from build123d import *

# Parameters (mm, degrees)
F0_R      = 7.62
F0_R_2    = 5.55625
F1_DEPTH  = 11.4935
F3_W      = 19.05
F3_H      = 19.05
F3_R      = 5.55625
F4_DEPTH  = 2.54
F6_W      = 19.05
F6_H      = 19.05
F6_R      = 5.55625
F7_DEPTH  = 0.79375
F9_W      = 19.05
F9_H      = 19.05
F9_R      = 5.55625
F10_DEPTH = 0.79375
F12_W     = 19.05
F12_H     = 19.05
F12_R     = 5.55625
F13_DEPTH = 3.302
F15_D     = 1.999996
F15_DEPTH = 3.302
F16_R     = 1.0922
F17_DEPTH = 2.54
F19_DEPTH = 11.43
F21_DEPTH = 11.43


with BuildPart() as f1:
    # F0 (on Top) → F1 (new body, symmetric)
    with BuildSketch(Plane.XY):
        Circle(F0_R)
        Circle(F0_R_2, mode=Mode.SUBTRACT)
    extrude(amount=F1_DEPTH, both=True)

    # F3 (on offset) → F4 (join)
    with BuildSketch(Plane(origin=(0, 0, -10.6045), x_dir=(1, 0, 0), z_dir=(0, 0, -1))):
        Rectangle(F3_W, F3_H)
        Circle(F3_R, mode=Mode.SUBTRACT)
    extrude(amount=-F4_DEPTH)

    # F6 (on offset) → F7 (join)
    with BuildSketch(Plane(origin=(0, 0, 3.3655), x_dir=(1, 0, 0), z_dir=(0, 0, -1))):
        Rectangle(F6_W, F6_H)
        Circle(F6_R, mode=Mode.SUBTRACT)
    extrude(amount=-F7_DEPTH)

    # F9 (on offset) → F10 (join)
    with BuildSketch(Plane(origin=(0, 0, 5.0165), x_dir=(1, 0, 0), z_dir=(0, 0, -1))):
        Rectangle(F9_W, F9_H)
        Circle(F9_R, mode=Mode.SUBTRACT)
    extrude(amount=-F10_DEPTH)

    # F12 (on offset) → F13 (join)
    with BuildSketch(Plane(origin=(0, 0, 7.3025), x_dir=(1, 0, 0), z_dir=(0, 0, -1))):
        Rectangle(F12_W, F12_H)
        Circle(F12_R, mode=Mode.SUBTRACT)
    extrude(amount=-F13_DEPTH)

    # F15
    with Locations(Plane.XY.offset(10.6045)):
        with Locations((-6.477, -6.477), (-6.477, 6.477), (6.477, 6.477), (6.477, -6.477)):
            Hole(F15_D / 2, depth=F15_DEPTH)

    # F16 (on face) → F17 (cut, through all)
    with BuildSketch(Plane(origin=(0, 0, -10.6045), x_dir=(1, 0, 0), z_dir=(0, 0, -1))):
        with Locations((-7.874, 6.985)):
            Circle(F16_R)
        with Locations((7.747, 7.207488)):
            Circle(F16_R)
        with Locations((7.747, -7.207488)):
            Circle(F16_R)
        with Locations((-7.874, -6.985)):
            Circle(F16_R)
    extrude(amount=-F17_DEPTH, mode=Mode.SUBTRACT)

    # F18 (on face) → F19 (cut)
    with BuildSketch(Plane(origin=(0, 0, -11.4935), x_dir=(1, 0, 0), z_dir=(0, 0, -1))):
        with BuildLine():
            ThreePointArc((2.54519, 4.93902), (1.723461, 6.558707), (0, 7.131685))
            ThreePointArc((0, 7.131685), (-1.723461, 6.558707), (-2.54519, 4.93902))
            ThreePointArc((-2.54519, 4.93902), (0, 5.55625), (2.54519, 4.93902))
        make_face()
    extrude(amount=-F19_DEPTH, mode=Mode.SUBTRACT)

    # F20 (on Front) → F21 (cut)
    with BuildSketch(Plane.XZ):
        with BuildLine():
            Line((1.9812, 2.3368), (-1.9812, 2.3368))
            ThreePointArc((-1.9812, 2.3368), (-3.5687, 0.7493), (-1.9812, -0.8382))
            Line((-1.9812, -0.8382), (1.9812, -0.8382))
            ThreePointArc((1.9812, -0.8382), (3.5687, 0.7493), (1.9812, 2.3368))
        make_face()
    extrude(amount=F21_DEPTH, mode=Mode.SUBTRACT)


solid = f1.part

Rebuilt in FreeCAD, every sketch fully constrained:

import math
import FreeCAD as App
import Part
import Sketcher
Q = App.Units.Quantity

doc = App.newDocument("Part")
body = doc.addObject("PartDesign::Body", "Body")

sketch1 = body.newObject("Sketcher::SketchObject", "Sketch")
sketch1.AttachmentSupport = (doc.getObject("XY_Plane"), [""])
sketch1.MapMode = "FlatFace"
sketch1.addGeometry(Part.Circle(App.Vector(0, 0, 0), App.Vector(0, 0, 1), 8), False)
sketch1.addGeometry(Part.Circle(App.Vector(0, 0, 0), App.Vector(0, 0, 1), 6), False)
sketch1.addConstraint(Sketcher.Constraint("Coincident", 0, 3, -1, 1))
sketch1.addConstraint(Sketcher.Constraint("Coincident", 1, 3, -1, 1))
sketch1.addConstraint(Sketcher.Constraint("Diameter", 0, Q("0.6 in")))
sketch1.addConstraint(Sketcher.Constraint("Diameter", 1, Q("0.4375 in")))
pad1 = body.newObject("PartDesign::Pad", "Pad")
pad1.Profile = sketch1
pad1.Length = Q("0.905 in")
pad1.Midplane = True

sketch2 = body.newObject("Sketcher::SketchObject", "Sketch001")
sketch2.AttachmentSupport = (doc.getObject("XY_Plane"), [""])
sketch2.MapMode = "FlatFace"
sketch2.AttachmentOffset = App.Placement(App.Vector(0, 0, -0.4175 * 25.4), App.Rotation())
sketch2.addGeometry(Part.LineSegment(App.Vector(-10, -10, 0), App.Vector(-10, 10, 0)), False)
sketch2.addGeometry(Part.LineSegment(App.Vector(-10, 10, 0), App.Vector(10, 10, 0)), False)
sketch2.addGeometry(Part.LineSegment(App.Vector(10, 10, 0), App.Vector(10, -10, 0)), False)
sketch2.addGeometry(Part.LineSegment(App.Vector(10, -10, 0), App.Vector(-10, -10, 0)), False)
sketch2.addGeometry(Part.Circle(App.Vector(0, 0, 0), App.Vector(0, 0, 1), 6), False)
sketch2.addConstraint(Sketcher.Constraint("Coincident", 0, 2, 1, 1))
sketch2.addConstraint(Sketcher.Constraint("Coincident", 1, 2, 2, 1))
sketch2.addConstraint(Sketcher.Constraint("Coincident", 2, 2, 3, 1))
sketch2.addConstraint(Sketcher.Constraint("Coincident", 3, 2, 0, 1))
sketch2.addConstraint(Sketcher.Constraint("Vertical", 0))
sketch2.addConstraint(Sketcher.Constraint("Horizontal", 1))
sketch2.addConstraint(Sketcher.Constraint("Vertical", 2))
sketch2.addConstraint(Sketcher.Constraint("Horizontal", 3))
sketch2.addConstraint(Sketcher.Constraint("Coincident", 4, 3, -1, 1))
sketch2.addConstraint(Sketcher.Constraint("Symmetric", 0, 2, 2, 2, -1, 1))
sketch2.addConstraint(Sketcher.Constraint("Equal", 3, 0))
sketch2.addConstraint(Sketcher.Constraint("Diameter", 4, Q("0.4375 in")))
sketch2.addConstraint(Sketcher.Constraint("DistanceX", 1, 1, 1, 2, Q("0.75 in")))
pad2 = body.newObject("PartDesign::Pad", "Pad001")
pad2.Profile = sketch2
pad2.Length = Q("0.1 in")

sketch3 = body.newObject("Sketcher::SketchObject", "Sketch002")
sketch3.AttachmentSupport = (doc.getObject("XY_Plane"), [""])
sketch3.MapMode = "FlatFace"
sketch3.AttachmentOffset = App.Placement(App.Vector(0, 0, 0.1325 * 25.4), App.Rotation())
sketch3.addGeometry(Part.LineSegment(App.Vector(-10, -10, 0), App.Vector(-10, 10, 0)), False)
sketch3.addGeometry(Part.LineSegment(App.Vector(-10, 10, 0), App.Vector(10, 10, 0)), False)
sketch3.addGeometry(Part.LineSegment(App.Vector(10, 10, 0), App.Vector(10, -10, 0)), False)
sketch3.addGeometry(Part.LineSegment(App.Vector(10, -10, 0), App.Vector(-10, -10, 0)), False)
sketch3.addGeometry(Part.Circle(App.Vector(0, 0, 0), App.Vector(0, 0, 1), 6), False)
sketch3.addConstraint(Sketcher.Constraint("Coincident", 0, 2, 1, 1))
sketch3.addConstraint(Sketcher.Constraint("Coincident", 1, 2, 2, 1))
sketch3.addConstraint(Sketcher.Constraint("Coincident", 2, 2, 3, 1))
sketch3.addConstraint(Sketcher.Constraint("Coincident", 3, 2, 0, 1))
sketch3.addConstraint(Sketcher.Constraint("Vertical", 0))
sketch3.addConstraint(Sketcher.Constraint("Horizontal", 1))
sketch3.addConstraint(Sketcher.Constraint("Vertical", 2))
sketch3.addConstraint(Sketcher.Constraint("Horizontal", 3))
sketch3.addConstraint(Sketcher.Constraint("Coincident", 4, 3, -1, 1))
sketch3.addConstraint(Sketcher.Constraint("Symmetric", 0, 2, 2, 2, -1, 1))
sketch3.addConstraint(Sketcher.Constraint("Equal", 3, 0))
sketch3.addConstraint(Sketcher.Constraint("Diameter", 4, Q("0.4375 in")))
sketch3.addConstraint(Sketcher.Constraint("DistanceX", 1, 1, 1, 2, Q("0.75 in")))
pad3 = body.newObject("PartDesign::Pad", "Pad002")
pad3.Profile = sketch3
pad3.Length = Q("0.03125 in")

sketch4 = body.newObject("Sketcher::SketchObject", "Sketch003")
sketch4.AttachmentSupport = (doc.getObject("XY_Plane"), [""])
sketch4.MapMode = "FlatFace"
sketch4.AttachmentOffset = App.Placement(App.Vector(0, 0, 0.1975 * 25.4), App.Rotation())
sketch4.addGeometry(Part.LineSegment(App.Vector(-10, -10, 0), App.Vector(-10, 10, 0)), False)
sketch4.addGeometry(Part.LineSegment(App.Vector(-10, 10, 0), App.Vector(10, 10, 0)), False)
sketch4.addGeometry(Part.LineSegment(App.Vector(10, 10, 0), App.Vector(10, -10, 0)), False)
sketch4.addGeometry(Part.LineSegment(App.Vector(10, -10, 0), App.Vector(-10, -10, 0)), False)
sketch4.addGeometry(Part.Circle(App.Vector(0, 0, 0), App.Vector(0, 0, 1), 6), False)
sketch4.addConstraint(Sketcher.Constraint("Coincident", 0, 2, 1, 1))
sketch4.addConstraint(Sketcher.Constraint("Coincident", 1, 2, 2, 1))
sketch4.addConstraint(Sketcher.Constraint("Coincident", 2, 2, 3, 1))
sketch4.addConstraint(Sketcher.Constraint("Coincident", 3, 2, 0, 1))
sketch4.addConstraint(Sketcher.Constraint("Vertical", 0))
sketch4.addConstraint(Sketcher.Constraint("Horizontal", 1))
sketch4.addConstraint(Sketcher.Constraint("Vertical", 2))
sketch4.addConstraint(Sketcher.Constraint("Horizontal", 3))
sketch4.addConstraint(Sketcher.Constraint("Coincident", 4, 3, -1, 1))
sketch4.addConstraint(Sketcher.Constraint("Symmetric", 0, 2, 2, 2, -1, 1))
sketch4.addConstraint(Sketcher.Constraint("Equal", 3, 0))
sketch4.addConstraint(Sketcher.Constraint("Diameter", 4, Q("0.4375 in")))
sketch4.addConstraint(Sketcher.Constraint("DistanceX", 1, 1, 1, 2, Q("0.75 in")))
pad4 = body.newObject("PartDesign::Pad", "Pad003")
pad4.Profile = sketch4
pad4.Length = Q("0.03125 in")

sketch5 = body.newObject("Sketcher::SketchObject", "Sketch004")
sketch5.AttachmentSupport = (doc.getObject("XY_Plane"), [""])
sketch5.MapMode = "FlatFace"
sketch5.AttachmentOffset = App.Placement(App.Vector(0, 0, 0.2875 * 25.4), App.Rotation())
sketch5.addGeometry(Part.LineSegment(App.Vector(-10, -10, 0), App.Vector(-10, 10, 0)), False)
sketch5.addGeometry(Part.LineSegment(App.Vector(-10, 10, 0), App.Vector(10, 10, 0)), False)
sketch5.addGeometry(Part.LineSegment(App.Vector(10, 10, 0), App.Vector(10, -10, 0)), False)
sketch5.addGeometry(Part.LineSegment(App.Vector(10, -10, 0), App.Vector(-10, -10, 0)), False)
sketch5.addGeometry(Part.Circle(App.Vector(0, 0, 0), App.Vector(0, 0, 1), 6), False)
sketch5.addConstraint(Sketcher.Constraint("Coincident", 0, 2, 1, 1))
sketch5.addConstraint(Sketcher.Constraint("Coincident", 1, 2, 2, 1))
sketch5.addConstraint(Sketcher.Constraint("Coincident", 2, 2, 3, 1))
sketch5.addConstraint(Sketcher.Constraint("Coincident", 3, 2, 0, 1))
sketch5.addConstraint(Sketcher.Constraint("Vertical", 0))
sketch5.addConstraint(Sketcher.Constraint("Horizontal", 1))
sketch5.addConstraint(Sketcher.Constraint("Vertical", 2))
sketch5.addConstraint(Sketcher.Constraint("Horizontal", 3))
sketch5.addConstraint(Sketcher.Constraint("Coincident", 4, 3, -1, 1))
sketch5.addConstraint(Sketcher.Constraint("Symmetric", 0, 2, 2, 2, -1, 1))
sketch5.addConstraint(Sketcher.Constraint("Equal", 3, 0))
sketch5.addConstraint(Sketcher.Constraint("Diameter", 4, Q("0.4375 in")))
sketch5.addConstraint(Sketcher.Constraint("DistanceX", 1, 1, 1, 2, Q("0.75 in")))
pad5 = body.newObject("PartDesign::Pad", "Pad004")
pad5.Profile = sketch5
pad5.Length = Q("0.13 in")

sketch6 = body.newObject("Sketcher::SketchObject", "Sketch005")
sketch6.AttachmentSupport = (doc.getObject("XY_Plane"), [""])
sketch6.MapMode = "FlatFace"
sketch6.AttachmentOffset = App.Placement(App.Vector(0, 0, 0.4175 * 25.4), App.Rotation())
sketch6.addGeometry(Part.Circle(App.Vector(-6.5, -6.5, 0), App.Vector(0, 0, 1), 1), False)
sketch6.addGeometry(Part.Circle(App.Vector(-6.5, 6.5, 0), App.Vector(0, 0, 1), 1), False)
sketch6.addGeometry(Part.Circle(App.Vector(6.5, 6.5, 0), App.Vector(0, 0, 1), 1), False)
sketch6.addGeometry(Part.Circle(App.Vector(6.5, -6.5, 0), App.Vector(0, 0, 1), 1), False)
sketch6.addConstraint(Sketcher.Constraint("Equal", 0, 1))
sketch6.addConstraint(Sketcher.Constraint("Equal", 1, 2))
sketch6.addConstraint(Sketcher.Constraint("Equal", 2, 3))
sketch6.addConstraint(Sketcher.Constraint("Symmetric", 0, 3, 2, 3, -1, 1))
sketch6.addConstraint(Sketcher.Constraint("Symmetric", 1, 3, 3, 3, -1, 1))
sketch6.addConstraint(Sketcher.Constraint("Symmetric", 1, 3, 2, 3, -2))
sketch6.addConstraint(Sketcher.Constraint("DistanceY", 0, 3, 1, 3, Q("0.51 in")))
sketch6.addConstraint(Sketcher.Constraint("DistanceX", 1, 3, 2, 3, Q("0.51 in")))
sketch6.addConstraint(Sketcher.Constraint("Diameter", 0, 1.999996))
doc.recompute()
hole = body.newObject("PartDesign::Hole", "Hole")
hole.Profile = sketch6
hole.ThreadType = "None"
hole.Diameter = 1.999996
hole.DepthType = "Dimension"
hole.Depth = Q("0.13 in")
hole.DrillPoint = "Flat"

sketch7 = body.newObject("Sketcher::SketchObject", "Sketch006")
sketch7.AttachmentSupport = (doc.getObject("XY_Plane"), [""])
sketch7.MapMode = "FlatFace"
sketch7.AttachmentOffset = App.Placement(App.Vector(0, 0, -0.4175 * 25.4), App.Rotation())
sketch7.addGeometry(Part.Circle(App.Vector(-7.9, -7, 0), App.Vector(0, 0, 1), 1.1), False)
sketch7.addGeometry(Part.Circle(App.Vector(7.7, -7.2, 0), App.Vector(0, 0, 1), 1.1), False)
sketch7.addGeometry(Part.Circle(App.Vector(7.7, 7.2, 0), App.Vector(0, 0, 1), 1.1), False)
sketch7.addGeometry(Part.Circle(App.Vector(-7.9, 7, 0), App.Vector(0, 0, 1), 1.1), False)
sketch7.addConstraint(Sketcher.Constraint("Equal", 0, 1))
sketch7.addConstraint(Sketcher.Constraint("Equal", 1, 2))
sketch7.addConstraint(Sketcher.Constraint("Equal", 2, 3))
sketch7.addConstraint(Sketcher.Constraint("Symmetric", 1, 3, 2, 3, -1))
sketch7.addConstraint(Sketcher.Constraint("Symmetric", 0, 3, 3, 3, -1))
sketch7.addConstraint(Sketcher.Constraint("Diameter", 0, Q("0.086 in")))
sketch7.addConstraint(Sketcher.Constraint("DistanceX", 0, 3, -1, 1, Q("0.31 in")))
sketch7.addConstraint(Sketcher.Constraint("DistanceY", 0, 3, 3, 3, Q("0.55 in")))
sketch7.addConstraint(Sketcher.Constraint("DistanceX", -1, 1, 1, 3, Q("0.305 in")))
sketch7.addConstraint(Sketcher.Constraint("DistanceY", 0, 3, 2, 3, 14.192488))
pocket1 = body.newObject("PartDesign::Pocket", "Pocket")
pocket1.Profile = sketch7
pocket1.Length = Q("0.1 in")
pocket1.Reversed = True

sketch8 = body.newObject("Sketcher::SketchObject", "Sketch007")
sketch8.AttachmentSupport = (doc.getObject("XY_Plane"), [""])
sketch8.MapMode = "FlatFace"
sketch8.AttachmentOffset = App.Placement(App.Vector(0, 0, -0.4525 * 25.4), App.Rotation())
sketch8.addGeometry(Part.ArcOfCircle(Part.Circle(App.Vector(0.2, -4.7, 0), App.Vector(0, 0, 1), 2.4), math.radians(-94), math.radians(-5)), False)
sketch8.addGeometry(Part.ArcOfCircle(Part.Circle(App.Vector(-0.2, -4.7, 0), App.Vector(0, 0, 1), 2.4), math.radians(-175), math.radians(-86)), False)
sketch8.addGeometry(Part.ArcOfCircle(Part.Circle(App.Vector(0, 0, 0), App.Vector(0, 0, 1), 5.6), math.radians(-117), math.radians(-63)), False)
sketch8.addConstraint(Sketcher.Constraint("Coincident", 0, 1, 1, 2))
sketch8.addConstraint(Sketcher.Constraint("Coincident", 1, 1, 2, 1))
sketch8.addConstraint(Sketcher.Constraint("Coincident", 2, 2, 0, 2))
sketch8.addConstraint(Sketcher.Constraint("Coincident", 2, 3, -1, 1))
sketch8.addConstraint(Sketcher.Constraint("Equal", 0, 1))
sketch8.addConstraint(Sketcher.Constraint("Symmetric", 0, 3, 1, 3, -2))
sketch8.addConstraint(Sketcher.Constraint("Radius", 0, Q("0.094 in")))
sketch8.addConstraint(Sketcher.Constraint("Radius", 2, Q("0.2187499 in")))
sketch8.addConstraint(Sketcher.Constraint("DistanceY", 0, 3, -1, 1, Q("0.187 in")))
sketch8.addConstraint(Sketcher.Constraint("DistanceX", 1, 3, 0, 3, Q("0.013 in")))
pocket2 = body.newObject("PartDesign::Pocket", "Pocket001")
pocket2.Profile = sketch8
pocket2.Length = Q("0.45 in")
pocket2.Reversed = True

sketch9 = body.newObject("Sketcher::SketchObject", "Sketch008")
sketch9.AttachmentSupport = (doc.getObject("XZ_Plane"), [""])
sketch9.MapMode = "FlatFace"
sketch9.addGeometry(Part.LineSegment(App.Vector(2, 2.3, 0), App.Vector(-2, 2.3, 0)), False)
sketch9.addGeometry(Part.ArcOfCircle(Part.Circle(App.Vector(-2, 0.7, 0), App.Vector(0, 0, 1), 1.6), math.radians(90), math.radians(270)), False)
sketch9.addGeometry(Part.LineSegment(App.Vector(-2, -0.8, 0), App.Vector(2, -0.8, 0)), False)
sketch9.addGeometry(Part.ArcOfCircle(Part.Circle(App.Vector(2, 0.7, 0), App.Vector(0, 0, 1), 1.6), math.radians(-90), math.radians(90)), False)
sketch9.addConstraint(Sketcher.Constraint("Tangent", 0, 2, 1, 1))
sketch9.addConstraint(Sketcher.Constraint("Tangent", 1, 2, 2, 1))
sketch9.addConstraint(Sketcher.Constraint("Tangent", 2, 2, 3, 1))
sketch9.addConstraint(Sketcher.Constraint("Tangent", 3, 2, 0, 1))
sketch9.addConstraint(Sketcher.Constraint("Horizontal", 0))
sketch9.addConstraint(Sketcher.Constraint("Horizontal", 2))
sketch9.addConstraint(Sketcher.Constraint("Radius", 1, Q("0.0625 in")))
sketch9.addConstraint(Sketcher.Constraint("DistanceX", 0, 2, 0, 1, Q("0.156 in")))
sketch9.addConstraint(Sketcher.Constraint("DistanceX", 1, 3, -1, 1, Q("0.078 in")))
sketch9.addConstraint(Sketcher.Constraint("DistanceY", -1, 1, 0, 2, Q("0.092 in")))
pocket3 = body.newObject("PartDesign::Pocket", "Pocket002")
pocket3.Profile = sketch9
pocket3.Length = Q("0.45 in")
pocket3.Reversed = True

doc.recompute()
